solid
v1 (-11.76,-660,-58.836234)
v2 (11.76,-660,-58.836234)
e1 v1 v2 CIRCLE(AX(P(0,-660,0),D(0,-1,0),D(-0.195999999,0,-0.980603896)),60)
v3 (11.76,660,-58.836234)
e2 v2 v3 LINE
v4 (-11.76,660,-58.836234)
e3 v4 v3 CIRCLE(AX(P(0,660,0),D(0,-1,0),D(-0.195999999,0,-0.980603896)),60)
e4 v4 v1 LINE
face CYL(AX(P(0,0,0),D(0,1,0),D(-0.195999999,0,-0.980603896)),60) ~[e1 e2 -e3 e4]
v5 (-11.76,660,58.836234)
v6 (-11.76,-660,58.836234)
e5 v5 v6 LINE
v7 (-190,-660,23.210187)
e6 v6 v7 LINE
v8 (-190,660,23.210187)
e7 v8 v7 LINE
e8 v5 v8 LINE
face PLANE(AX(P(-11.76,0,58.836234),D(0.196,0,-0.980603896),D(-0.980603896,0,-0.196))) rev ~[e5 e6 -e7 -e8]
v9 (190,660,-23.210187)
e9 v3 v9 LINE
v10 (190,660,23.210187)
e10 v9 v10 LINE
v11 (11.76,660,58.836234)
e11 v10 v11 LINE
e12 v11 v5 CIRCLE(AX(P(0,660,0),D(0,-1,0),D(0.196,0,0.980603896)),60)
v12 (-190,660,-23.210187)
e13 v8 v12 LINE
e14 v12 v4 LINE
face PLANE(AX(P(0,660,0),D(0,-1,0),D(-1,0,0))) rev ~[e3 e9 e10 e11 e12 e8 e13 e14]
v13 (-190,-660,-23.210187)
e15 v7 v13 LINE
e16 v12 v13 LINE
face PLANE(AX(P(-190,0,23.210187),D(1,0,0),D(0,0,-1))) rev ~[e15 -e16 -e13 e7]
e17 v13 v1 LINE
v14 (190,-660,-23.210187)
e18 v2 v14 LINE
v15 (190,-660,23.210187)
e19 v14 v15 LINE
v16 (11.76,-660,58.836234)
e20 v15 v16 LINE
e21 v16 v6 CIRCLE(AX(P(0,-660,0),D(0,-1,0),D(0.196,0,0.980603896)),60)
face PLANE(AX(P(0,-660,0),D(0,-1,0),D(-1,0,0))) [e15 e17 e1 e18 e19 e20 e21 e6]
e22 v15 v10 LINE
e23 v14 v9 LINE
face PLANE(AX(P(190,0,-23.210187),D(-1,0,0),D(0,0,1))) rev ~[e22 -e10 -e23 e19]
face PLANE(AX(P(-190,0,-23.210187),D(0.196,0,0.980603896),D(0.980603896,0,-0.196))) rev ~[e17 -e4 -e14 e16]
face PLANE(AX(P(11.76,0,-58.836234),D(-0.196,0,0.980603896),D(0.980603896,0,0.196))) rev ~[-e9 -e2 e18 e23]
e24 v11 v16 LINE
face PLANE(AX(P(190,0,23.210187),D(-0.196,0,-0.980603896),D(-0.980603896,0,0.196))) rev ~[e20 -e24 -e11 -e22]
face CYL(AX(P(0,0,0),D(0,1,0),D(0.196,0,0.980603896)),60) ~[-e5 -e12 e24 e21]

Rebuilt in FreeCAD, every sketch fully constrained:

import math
import FreeCAD as App
import Part
import Sketcher
Q = App.Units.Quantity

doc = App.newDocument("Part")
params = doc.addObject("Spreadsheet::Sheet", "Params")
for row, (alias, value) in enumerate([
    ("sketch1_radius", "60 mm"),
    ("pad1_length", "1320 mm"),
], start=1):
    params.set(f"A{row}", alias)
    params.set(f"B{row}", "=" + value)
    params.setAlias(f"B{row}", alias)

body = doc.addObject("PartDesign::Body", "Body")

# Sketch on XZ plane
sketch1 = doc.addObject("Sketcher::SketchObject", "Sketch")
body.addObject(sketch1)
sketch1.AttachmentSupport = (doc.XZ_Plane, [""])
sketch1.MapMode = "FlatFace"
sketch1.addGeometry(Part.LineSegment(App.Vector(12, 59, 0), App.Vector(190, 23, 0)), False)
sketch1.addGeometry(Part.LineSegment(App.Vector(190, 23, 0), App.Vector(190, -23, 0)), False)
sketch1.addGeometry(Part.LineSegment(App.Vector(190, -23, 0), App.Vector(12, -59, 0)), False)
sketch1.addGeometry(Part.ArcOfCircle(Part.Circle(App.Vector(0, 0, 0), App.Vector(0, 0, 1), 60), math.radians(-101), math.radians(-79)), False)
sketch1.addGeometry(Part.LineSegment(App.Vector(-12, -59, 0), App.Vector(-190, -23, 0)), False)
sketch1.addGeometry(Part.LineSegment(App.Vector(-190, -23, 0), App.Vector(-190, 23, 0)), False)
sketch1.addGeometry(Part.LineSegment(App.Vector(-190, 23, 0), App.Vector(-12, 59, 0)), False)
sketch1.addGeometry(Part.ArcOfCircle(Part.Circle(App.Vector(0, 0, 0), App.Vector(0, 0, 1), 60), math.radians(79), math.radians(101)), False)
sketch1.addConstraint(Sketcher.Constraint("Coincident", 0, 2, 1, 1))
sketch1.addConstraint(Sketcher.Constraint("Coincident", 1, 2, 2, 1))
sketch1.addConstraint(Sketcher.Constraint("Tangent", 2, 2, 3, 2))
sketch1.addConstraint(Sketcher.Constraint("Tangent", 3, 1, 4, 1))
sketch1.addConstraint(Sketcher.Constraint("Coincident", 4, 2, 5, 1))
sketch1.addConstraint(Sketcher.Constraint("Coincident", 5, 2, 6, 1))
sketch1.addConstraint(Sketcher.Constraint("Tangent", 6, 2, 7, 2))
sketch1.addConstraint(Sketcher.Constraint("Tangent", 7, 1, 0, 1))
sketch1.addConstraint(Sketcher.Constraint("Vertical", 1))
sketch1.addConstraint(Sketcher.Constraint("Vertical", 5))
sketch1.addConstraint(Sketcher.Constraint("Coincident", 3, 3, -1, 1))
sketch1.addConstraint(Sketcher.Constraint("Coincident", 7, 3, -1, 1))
sketch1.addConstraint(Sketcher.Constraint("Equal", 3, 7))
sketch1.addConstraint(Sketcher.Constraint("Symmetric", 0, 2, 4, 2, -1, 1))
sketch1.addConstraint(Sketcher.Constraint("Parallel", 2, 6))
sketch1.addConstraint(Sketcher.Constraint("Horizontal", 2, 2, 3, 1))
sketch1.addConstraint(Sketcher.Constraint("Radius", 3, Q("60 mm")))
sketch1.addConstraint(Sketcher.Constraint("DistanceX", -1, 1, 0, 2, Q("190 mm")))
sketch1.addConstraint(Sketcher.Constraint("DistanceX", -1, 1, 2, 2, Q("11.76 mm")))
sketch1.setExpression("Constraints[16]", "Params.sketch1_radius")
pad1 = doc.addObject("PartDesign::Pad", "Pad")
body.addObject(pad1)
pad1.Profile = sketch1
pad1.setExpression("Length", "Params.pad1_length")
pad1.Midplane = True

doc.recompute()
